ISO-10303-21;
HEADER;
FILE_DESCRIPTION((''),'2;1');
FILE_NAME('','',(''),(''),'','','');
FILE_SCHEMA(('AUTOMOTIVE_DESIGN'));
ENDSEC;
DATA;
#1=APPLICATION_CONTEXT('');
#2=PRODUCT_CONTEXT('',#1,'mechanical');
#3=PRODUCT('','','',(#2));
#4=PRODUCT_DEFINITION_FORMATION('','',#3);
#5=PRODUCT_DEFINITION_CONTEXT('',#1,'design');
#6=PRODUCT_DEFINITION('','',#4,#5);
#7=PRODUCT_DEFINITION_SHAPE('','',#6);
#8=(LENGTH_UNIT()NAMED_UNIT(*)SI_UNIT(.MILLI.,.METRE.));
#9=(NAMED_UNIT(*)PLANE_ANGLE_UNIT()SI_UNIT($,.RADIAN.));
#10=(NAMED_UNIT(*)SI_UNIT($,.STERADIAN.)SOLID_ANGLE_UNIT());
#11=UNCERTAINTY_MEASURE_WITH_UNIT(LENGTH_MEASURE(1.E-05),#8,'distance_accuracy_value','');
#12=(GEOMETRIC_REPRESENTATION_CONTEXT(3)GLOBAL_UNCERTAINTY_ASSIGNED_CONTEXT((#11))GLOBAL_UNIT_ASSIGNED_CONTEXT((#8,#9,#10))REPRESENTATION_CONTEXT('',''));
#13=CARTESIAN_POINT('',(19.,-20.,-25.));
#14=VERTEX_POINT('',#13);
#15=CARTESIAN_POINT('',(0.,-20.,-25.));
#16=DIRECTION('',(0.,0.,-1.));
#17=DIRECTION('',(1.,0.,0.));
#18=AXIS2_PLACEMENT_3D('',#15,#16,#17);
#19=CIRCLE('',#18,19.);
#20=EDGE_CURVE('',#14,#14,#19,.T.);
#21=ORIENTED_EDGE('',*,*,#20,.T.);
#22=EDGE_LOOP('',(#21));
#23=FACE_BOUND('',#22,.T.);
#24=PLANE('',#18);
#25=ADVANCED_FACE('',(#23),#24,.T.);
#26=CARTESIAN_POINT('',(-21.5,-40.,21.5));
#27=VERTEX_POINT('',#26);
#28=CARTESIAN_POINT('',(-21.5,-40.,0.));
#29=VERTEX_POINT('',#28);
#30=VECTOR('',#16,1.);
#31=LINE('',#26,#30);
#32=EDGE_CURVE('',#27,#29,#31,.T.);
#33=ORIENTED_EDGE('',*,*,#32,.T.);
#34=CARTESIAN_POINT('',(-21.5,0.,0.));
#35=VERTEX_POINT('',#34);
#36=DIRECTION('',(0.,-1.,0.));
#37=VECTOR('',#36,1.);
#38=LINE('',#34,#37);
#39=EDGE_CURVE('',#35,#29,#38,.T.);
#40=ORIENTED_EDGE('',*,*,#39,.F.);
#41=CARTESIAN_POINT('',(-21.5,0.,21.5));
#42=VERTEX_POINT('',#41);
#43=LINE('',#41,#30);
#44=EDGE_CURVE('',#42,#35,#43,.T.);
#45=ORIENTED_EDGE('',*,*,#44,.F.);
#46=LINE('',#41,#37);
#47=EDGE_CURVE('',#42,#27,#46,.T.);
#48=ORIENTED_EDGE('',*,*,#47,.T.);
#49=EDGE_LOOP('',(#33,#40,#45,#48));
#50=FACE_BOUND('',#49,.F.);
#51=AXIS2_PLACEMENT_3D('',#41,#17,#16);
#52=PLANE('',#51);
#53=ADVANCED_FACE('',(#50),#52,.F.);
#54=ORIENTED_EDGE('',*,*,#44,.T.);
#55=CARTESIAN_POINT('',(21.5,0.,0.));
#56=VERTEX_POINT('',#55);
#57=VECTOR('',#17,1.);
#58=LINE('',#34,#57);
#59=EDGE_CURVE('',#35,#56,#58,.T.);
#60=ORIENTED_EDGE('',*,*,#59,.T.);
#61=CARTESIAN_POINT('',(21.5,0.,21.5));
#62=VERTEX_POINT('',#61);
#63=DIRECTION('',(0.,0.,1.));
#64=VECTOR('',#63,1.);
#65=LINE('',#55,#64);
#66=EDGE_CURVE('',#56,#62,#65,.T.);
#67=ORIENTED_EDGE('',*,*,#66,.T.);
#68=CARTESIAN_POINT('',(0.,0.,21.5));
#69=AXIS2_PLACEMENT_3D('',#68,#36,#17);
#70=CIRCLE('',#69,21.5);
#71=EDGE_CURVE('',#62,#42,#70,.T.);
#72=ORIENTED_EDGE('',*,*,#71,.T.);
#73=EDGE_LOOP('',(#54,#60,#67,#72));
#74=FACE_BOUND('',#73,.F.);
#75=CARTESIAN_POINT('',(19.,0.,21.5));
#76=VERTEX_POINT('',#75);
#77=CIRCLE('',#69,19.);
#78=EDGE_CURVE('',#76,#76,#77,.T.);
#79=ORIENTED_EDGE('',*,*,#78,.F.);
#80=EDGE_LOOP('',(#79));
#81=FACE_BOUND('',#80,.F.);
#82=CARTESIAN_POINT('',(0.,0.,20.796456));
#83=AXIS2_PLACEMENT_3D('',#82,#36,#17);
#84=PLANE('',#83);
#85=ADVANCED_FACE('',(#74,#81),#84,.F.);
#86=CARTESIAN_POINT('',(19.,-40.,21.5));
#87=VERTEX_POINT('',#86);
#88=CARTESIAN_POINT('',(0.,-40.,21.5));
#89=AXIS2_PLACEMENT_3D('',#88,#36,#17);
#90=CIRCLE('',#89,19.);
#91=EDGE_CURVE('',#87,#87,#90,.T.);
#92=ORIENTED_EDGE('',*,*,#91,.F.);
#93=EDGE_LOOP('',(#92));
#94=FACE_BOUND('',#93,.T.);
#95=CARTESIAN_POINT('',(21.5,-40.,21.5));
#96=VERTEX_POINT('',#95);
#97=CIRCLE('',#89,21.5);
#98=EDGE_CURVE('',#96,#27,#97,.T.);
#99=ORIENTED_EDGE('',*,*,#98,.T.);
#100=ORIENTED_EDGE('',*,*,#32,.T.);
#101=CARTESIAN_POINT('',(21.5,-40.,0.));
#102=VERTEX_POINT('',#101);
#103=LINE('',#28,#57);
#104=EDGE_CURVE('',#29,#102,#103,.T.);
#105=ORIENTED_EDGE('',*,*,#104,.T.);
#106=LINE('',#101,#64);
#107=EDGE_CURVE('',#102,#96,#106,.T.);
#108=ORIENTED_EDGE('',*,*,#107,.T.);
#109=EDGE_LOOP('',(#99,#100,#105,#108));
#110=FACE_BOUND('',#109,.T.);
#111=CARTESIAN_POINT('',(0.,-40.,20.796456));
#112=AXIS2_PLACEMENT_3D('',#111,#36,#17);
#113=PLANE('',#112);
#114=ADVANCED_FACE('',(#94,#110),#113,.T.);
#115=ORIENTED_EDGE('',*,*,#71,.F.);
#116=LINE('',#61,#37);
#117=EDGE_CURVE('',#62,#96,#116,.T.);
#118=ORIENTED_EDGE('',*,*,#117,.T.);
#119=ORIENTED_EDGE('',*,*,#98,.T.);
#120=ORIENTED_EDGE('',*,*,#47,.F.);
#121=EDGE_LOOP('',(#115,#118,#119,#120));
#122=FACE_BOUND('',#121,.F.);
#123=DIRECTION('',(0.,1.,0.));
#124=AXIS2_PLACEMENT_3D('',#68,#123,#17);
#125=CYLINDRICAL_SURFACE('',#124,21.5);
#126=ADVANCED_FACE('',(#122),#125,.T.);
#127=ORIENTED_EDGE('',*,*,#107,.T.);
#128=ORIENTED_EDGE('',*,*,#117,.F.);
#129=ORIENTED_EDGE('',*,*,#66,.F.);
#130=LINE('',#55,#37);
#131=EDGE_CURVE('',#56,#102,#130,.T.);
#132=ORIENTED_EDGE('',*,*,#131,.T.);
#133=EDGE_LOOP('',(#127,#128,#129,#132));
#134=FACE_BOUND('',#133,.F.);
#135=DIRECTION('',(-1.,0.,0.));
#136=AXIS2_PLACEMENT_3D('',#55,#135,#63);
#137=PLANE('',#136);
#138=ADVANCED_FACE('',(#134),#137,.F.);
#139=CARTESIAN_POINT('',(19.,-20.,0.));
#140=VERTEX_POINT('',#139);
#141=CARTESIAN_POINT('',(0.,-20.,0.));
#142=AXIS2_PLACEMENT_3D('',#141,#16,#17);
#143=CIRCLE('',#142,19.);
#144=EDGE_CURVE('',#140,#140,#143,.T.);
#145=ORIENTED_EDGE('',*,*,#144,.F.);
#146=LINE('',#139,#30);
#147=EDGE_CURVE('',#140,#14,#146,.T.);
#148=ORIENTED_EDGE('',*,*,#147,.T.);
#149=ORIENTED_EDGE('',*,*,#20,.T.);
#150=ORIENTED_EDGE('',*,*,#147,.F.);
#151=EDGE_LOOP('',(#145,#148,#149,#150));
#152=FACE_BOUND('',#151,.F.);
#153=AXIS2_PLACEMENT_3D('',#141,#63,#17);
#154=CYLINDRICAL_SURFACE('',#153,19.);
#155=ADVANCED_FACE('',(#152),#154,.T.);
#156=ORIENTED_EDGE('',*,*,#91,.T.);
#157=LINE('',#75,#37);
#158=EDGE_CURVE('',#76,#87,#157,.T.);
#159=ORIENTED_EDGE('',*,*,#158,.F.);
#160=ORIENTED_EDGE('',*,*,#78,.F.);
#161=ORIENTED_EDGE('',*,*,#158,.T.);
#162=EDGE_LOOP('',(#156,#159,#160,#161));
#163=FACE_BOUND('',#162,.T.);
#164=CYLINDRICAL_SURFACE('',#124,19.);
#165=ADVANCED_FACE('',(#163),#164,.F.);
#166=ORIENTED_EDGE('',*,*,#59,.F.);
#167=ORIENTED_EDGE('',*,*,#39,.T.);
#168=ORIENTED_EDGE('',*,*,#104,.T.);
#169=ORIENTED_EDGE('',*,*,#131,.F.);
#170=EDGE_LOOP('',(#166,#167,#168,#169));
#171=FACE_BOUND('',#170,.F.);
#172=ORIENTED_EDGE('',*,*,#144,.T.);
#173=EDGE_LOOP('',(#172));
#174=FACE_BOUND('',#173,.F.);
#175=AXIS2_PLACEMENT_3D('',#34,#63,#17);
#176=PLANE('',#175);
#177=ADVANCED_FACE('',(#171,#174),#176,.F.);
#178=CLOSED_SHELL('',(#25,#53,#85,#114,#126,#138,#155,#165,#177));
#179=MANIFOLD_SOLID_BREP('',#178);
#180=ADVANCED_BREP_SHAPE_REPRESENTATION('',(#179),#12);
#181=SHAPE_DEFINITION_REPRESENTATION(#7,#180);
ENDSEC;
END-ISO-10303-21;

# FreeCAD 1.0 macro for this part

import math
import FreeCAD as App
import Part
import Sketcher

V = App.Vector

doc = App.newDocument("Part")
body = doc.addObject("PartDesign::Body", "Body")

# Sketch on XZ plane
sketch1 = body.newObject("Sketcher::SketchObject", "Sketch")
sketch1.AttachmentSupport = (doc.getObject("XZ_Plane"), [""])
sketch1.MapMode = "FlatFace"
sketch1.addGeometry([
    Part.LineSegment(V(22, 0, 0), V(22, 22, 0)),  # 0
    Part.ArcOfCircle(Part.Circle(V(0, 22, 0), V(0, 0, 1), 22), math.radians(0), math.radians(180)),  # 1
    Part.LineSegment(V(-22, 22, 0), V(-22, 0, 0)),  # 2
    Part.LineSegment(V(-22, 0, 0), V(22, 0, 0)),  # 3
    Part.Circle(V(0, 22, 0), V(0, 0, 1), 19),  # 4
], False)
sketch1.addConstraint([
    Sketcher.Constraint("Tangent", 0, 2, 1, 1),
    Sketcher.Constraint("Tangent", 1, 2, 2, 1),
    Sketcher.Constraint("Coincident", 2, 2, 3, 1),
    Sketcher.Constraint("Coincident", 3, 2, 0, 1),
    Sketcher.Constraint("Vertical", 0),
    Sketcher.Constraint("Vertical", 2),
    Sketcher.Constraint("Horizontal", 3),
    Sketcher.Constraint("Coincident", 4, 3, 1, 3),
    Sketcher.Constraint("Symmetric", 2, 2, 3, 2, -1, 1),
    Sketcher.Constraint("Diameter", 4, 38.0),
    Sketcher.Constraint("Radius", 1, 21.5),
    Sketcher.Constraint("DistanceY", 0, 1, 0, 2, 21.5),
])
pad1 = body.newObject("PartDesign::Pad", "Pad")
pad1.Profile = sketch1
pad1.Length = 40

# Sketch on XY plane
sketch2 = body.newObject("Sketcher::SketchObject", "Sketch001")
sketch2.AttachmentSupport = (doc.getObject("XY_Plane"), [""])
sketch2.MapMode = "FlatFace"
sketch2.addGeometry(Part.Circle(V(0, -20, 0), V(0, 0, 1), 19), False)
sketch2.addConstraint([
    Sketcher.Constraint("PointOnObject", 0, 3, -2),
    Sketcher.Constraint("Diameter", 0, 38.0),
    Sketcher.Constraint("DistanceY", 0, 3, -1, 1, 20.0),
])
pad2 = body.newObject("PartDesign::Pad", "Pad001")
pad2.Profile = sketch2
pad2.Length = 25
pad2.Reversed = True

doc.recompute()
